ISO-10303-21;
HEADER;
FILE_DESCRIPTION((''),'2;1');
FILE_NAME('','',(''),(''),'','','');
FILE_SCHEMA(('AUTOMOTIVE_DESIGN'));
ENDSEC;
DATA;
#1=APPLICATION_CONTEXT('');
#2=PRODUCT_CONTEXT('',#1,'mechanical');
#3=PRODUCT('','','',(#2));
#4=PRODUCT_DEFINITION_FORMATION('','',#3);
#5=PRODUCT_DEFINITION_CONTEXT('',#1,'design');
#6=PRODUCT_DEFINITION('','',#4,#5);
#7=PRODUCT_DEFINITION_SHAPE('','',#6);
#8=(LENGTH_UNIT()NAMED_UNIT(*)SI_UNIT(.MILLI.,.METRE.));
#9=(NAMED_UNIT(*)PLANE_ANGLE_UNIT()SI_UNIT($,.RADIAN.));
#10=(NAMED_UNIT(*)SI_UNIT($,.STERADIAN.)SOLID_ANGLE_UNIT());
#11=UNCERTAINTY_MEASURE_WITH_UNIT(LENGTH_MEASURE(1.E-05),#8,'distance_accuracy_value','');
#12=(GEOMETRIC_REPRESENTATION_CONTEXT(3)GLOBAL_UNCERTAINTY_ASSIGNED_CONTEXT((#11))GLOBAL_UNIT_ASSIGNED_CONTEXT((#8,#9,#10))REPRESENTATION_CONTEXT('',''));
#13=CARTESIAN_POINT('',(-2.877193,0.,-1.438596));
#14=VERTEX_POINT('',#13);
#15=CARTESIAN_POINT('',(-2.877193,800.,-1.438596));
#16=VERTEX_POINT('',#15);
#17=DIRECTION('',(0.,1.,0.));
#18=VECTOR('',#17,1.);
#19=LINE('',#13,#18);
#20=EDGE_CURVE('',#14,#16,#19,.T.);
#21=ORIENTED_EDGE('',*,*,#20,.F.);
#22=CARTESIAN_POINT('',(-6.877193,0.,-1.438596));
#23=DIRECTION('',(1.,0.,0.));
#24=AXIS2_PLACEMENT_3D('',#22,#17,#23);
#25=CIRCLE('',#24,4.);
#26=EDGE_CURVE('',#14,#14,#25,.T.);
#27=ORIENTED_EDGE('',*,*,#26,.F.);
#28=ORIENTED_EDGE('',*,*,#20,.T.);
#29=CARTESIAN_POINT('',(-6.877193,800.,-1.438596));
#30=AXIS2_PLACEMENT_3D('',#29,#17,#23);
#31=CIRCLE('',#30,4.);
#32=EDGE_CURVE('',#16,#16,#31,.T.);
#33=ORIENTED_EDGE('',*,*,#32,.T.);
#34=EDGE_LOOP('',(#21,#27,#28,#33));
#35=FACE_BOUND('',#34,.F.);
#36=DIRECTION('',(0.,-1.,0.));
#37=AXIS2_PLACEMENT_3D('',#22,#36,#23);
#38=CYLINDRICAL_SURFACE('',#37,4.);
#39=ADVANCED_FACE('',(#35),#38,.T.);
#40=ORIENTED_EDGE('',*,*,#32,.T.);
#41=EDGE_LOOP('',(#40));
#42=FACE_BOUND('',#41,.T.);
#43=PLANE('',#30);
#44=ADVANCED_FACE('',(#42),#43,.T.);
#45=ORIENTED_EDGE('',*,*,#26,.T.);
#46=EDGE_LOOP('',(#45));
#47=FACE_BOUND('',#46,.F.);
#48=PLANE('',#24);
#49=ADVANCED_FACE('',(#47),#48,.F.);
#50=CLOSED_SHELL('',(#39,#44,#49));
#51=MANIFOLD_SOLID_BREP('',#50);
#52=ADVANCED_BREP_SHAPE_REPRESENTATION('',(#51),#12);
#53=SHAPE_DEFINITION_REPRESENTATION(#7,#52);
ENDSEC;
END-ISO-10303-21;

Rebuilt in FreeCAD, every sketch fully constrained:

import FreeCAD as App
import Part
import Sketcher
Q = App.Units.Quantity

doc = App.newDocument("Part")
body = doc.addObject("PartDesign::Body", "Body")

# Sketch on XZ plane
sketch1 = body.newObject("Sketcher::SketchObject", "Sketch")
sketch1.AttachmentSupport = (doc.getObject("XZ_Plane"), [""])
sketch1.MapMode = "FlatFace"
sketch1.addGeometry(Part.Circle(App.Vector(-6.9, -1.4, 0), App.Vector(0, 0, 1), 4), False)
sketch1.addConstraint([
    Sketcher.Constraint("Diameter", 0, Q("8 mm")),
    Sketcher.Constraint("DistanceX", 0, 3, -1, 1, Q("6.877193 mm")),
    Sketcher.Constraint("DistanceY", 0, 3, -1, 1, Q("1.438596 mm")),
])
pad1 = body.newObject("PartDesign::Pad", "Pad")
pad1.Profile = sketch1
pad1.Length = 800
pad1.Reversed = True

doc.recompute()
